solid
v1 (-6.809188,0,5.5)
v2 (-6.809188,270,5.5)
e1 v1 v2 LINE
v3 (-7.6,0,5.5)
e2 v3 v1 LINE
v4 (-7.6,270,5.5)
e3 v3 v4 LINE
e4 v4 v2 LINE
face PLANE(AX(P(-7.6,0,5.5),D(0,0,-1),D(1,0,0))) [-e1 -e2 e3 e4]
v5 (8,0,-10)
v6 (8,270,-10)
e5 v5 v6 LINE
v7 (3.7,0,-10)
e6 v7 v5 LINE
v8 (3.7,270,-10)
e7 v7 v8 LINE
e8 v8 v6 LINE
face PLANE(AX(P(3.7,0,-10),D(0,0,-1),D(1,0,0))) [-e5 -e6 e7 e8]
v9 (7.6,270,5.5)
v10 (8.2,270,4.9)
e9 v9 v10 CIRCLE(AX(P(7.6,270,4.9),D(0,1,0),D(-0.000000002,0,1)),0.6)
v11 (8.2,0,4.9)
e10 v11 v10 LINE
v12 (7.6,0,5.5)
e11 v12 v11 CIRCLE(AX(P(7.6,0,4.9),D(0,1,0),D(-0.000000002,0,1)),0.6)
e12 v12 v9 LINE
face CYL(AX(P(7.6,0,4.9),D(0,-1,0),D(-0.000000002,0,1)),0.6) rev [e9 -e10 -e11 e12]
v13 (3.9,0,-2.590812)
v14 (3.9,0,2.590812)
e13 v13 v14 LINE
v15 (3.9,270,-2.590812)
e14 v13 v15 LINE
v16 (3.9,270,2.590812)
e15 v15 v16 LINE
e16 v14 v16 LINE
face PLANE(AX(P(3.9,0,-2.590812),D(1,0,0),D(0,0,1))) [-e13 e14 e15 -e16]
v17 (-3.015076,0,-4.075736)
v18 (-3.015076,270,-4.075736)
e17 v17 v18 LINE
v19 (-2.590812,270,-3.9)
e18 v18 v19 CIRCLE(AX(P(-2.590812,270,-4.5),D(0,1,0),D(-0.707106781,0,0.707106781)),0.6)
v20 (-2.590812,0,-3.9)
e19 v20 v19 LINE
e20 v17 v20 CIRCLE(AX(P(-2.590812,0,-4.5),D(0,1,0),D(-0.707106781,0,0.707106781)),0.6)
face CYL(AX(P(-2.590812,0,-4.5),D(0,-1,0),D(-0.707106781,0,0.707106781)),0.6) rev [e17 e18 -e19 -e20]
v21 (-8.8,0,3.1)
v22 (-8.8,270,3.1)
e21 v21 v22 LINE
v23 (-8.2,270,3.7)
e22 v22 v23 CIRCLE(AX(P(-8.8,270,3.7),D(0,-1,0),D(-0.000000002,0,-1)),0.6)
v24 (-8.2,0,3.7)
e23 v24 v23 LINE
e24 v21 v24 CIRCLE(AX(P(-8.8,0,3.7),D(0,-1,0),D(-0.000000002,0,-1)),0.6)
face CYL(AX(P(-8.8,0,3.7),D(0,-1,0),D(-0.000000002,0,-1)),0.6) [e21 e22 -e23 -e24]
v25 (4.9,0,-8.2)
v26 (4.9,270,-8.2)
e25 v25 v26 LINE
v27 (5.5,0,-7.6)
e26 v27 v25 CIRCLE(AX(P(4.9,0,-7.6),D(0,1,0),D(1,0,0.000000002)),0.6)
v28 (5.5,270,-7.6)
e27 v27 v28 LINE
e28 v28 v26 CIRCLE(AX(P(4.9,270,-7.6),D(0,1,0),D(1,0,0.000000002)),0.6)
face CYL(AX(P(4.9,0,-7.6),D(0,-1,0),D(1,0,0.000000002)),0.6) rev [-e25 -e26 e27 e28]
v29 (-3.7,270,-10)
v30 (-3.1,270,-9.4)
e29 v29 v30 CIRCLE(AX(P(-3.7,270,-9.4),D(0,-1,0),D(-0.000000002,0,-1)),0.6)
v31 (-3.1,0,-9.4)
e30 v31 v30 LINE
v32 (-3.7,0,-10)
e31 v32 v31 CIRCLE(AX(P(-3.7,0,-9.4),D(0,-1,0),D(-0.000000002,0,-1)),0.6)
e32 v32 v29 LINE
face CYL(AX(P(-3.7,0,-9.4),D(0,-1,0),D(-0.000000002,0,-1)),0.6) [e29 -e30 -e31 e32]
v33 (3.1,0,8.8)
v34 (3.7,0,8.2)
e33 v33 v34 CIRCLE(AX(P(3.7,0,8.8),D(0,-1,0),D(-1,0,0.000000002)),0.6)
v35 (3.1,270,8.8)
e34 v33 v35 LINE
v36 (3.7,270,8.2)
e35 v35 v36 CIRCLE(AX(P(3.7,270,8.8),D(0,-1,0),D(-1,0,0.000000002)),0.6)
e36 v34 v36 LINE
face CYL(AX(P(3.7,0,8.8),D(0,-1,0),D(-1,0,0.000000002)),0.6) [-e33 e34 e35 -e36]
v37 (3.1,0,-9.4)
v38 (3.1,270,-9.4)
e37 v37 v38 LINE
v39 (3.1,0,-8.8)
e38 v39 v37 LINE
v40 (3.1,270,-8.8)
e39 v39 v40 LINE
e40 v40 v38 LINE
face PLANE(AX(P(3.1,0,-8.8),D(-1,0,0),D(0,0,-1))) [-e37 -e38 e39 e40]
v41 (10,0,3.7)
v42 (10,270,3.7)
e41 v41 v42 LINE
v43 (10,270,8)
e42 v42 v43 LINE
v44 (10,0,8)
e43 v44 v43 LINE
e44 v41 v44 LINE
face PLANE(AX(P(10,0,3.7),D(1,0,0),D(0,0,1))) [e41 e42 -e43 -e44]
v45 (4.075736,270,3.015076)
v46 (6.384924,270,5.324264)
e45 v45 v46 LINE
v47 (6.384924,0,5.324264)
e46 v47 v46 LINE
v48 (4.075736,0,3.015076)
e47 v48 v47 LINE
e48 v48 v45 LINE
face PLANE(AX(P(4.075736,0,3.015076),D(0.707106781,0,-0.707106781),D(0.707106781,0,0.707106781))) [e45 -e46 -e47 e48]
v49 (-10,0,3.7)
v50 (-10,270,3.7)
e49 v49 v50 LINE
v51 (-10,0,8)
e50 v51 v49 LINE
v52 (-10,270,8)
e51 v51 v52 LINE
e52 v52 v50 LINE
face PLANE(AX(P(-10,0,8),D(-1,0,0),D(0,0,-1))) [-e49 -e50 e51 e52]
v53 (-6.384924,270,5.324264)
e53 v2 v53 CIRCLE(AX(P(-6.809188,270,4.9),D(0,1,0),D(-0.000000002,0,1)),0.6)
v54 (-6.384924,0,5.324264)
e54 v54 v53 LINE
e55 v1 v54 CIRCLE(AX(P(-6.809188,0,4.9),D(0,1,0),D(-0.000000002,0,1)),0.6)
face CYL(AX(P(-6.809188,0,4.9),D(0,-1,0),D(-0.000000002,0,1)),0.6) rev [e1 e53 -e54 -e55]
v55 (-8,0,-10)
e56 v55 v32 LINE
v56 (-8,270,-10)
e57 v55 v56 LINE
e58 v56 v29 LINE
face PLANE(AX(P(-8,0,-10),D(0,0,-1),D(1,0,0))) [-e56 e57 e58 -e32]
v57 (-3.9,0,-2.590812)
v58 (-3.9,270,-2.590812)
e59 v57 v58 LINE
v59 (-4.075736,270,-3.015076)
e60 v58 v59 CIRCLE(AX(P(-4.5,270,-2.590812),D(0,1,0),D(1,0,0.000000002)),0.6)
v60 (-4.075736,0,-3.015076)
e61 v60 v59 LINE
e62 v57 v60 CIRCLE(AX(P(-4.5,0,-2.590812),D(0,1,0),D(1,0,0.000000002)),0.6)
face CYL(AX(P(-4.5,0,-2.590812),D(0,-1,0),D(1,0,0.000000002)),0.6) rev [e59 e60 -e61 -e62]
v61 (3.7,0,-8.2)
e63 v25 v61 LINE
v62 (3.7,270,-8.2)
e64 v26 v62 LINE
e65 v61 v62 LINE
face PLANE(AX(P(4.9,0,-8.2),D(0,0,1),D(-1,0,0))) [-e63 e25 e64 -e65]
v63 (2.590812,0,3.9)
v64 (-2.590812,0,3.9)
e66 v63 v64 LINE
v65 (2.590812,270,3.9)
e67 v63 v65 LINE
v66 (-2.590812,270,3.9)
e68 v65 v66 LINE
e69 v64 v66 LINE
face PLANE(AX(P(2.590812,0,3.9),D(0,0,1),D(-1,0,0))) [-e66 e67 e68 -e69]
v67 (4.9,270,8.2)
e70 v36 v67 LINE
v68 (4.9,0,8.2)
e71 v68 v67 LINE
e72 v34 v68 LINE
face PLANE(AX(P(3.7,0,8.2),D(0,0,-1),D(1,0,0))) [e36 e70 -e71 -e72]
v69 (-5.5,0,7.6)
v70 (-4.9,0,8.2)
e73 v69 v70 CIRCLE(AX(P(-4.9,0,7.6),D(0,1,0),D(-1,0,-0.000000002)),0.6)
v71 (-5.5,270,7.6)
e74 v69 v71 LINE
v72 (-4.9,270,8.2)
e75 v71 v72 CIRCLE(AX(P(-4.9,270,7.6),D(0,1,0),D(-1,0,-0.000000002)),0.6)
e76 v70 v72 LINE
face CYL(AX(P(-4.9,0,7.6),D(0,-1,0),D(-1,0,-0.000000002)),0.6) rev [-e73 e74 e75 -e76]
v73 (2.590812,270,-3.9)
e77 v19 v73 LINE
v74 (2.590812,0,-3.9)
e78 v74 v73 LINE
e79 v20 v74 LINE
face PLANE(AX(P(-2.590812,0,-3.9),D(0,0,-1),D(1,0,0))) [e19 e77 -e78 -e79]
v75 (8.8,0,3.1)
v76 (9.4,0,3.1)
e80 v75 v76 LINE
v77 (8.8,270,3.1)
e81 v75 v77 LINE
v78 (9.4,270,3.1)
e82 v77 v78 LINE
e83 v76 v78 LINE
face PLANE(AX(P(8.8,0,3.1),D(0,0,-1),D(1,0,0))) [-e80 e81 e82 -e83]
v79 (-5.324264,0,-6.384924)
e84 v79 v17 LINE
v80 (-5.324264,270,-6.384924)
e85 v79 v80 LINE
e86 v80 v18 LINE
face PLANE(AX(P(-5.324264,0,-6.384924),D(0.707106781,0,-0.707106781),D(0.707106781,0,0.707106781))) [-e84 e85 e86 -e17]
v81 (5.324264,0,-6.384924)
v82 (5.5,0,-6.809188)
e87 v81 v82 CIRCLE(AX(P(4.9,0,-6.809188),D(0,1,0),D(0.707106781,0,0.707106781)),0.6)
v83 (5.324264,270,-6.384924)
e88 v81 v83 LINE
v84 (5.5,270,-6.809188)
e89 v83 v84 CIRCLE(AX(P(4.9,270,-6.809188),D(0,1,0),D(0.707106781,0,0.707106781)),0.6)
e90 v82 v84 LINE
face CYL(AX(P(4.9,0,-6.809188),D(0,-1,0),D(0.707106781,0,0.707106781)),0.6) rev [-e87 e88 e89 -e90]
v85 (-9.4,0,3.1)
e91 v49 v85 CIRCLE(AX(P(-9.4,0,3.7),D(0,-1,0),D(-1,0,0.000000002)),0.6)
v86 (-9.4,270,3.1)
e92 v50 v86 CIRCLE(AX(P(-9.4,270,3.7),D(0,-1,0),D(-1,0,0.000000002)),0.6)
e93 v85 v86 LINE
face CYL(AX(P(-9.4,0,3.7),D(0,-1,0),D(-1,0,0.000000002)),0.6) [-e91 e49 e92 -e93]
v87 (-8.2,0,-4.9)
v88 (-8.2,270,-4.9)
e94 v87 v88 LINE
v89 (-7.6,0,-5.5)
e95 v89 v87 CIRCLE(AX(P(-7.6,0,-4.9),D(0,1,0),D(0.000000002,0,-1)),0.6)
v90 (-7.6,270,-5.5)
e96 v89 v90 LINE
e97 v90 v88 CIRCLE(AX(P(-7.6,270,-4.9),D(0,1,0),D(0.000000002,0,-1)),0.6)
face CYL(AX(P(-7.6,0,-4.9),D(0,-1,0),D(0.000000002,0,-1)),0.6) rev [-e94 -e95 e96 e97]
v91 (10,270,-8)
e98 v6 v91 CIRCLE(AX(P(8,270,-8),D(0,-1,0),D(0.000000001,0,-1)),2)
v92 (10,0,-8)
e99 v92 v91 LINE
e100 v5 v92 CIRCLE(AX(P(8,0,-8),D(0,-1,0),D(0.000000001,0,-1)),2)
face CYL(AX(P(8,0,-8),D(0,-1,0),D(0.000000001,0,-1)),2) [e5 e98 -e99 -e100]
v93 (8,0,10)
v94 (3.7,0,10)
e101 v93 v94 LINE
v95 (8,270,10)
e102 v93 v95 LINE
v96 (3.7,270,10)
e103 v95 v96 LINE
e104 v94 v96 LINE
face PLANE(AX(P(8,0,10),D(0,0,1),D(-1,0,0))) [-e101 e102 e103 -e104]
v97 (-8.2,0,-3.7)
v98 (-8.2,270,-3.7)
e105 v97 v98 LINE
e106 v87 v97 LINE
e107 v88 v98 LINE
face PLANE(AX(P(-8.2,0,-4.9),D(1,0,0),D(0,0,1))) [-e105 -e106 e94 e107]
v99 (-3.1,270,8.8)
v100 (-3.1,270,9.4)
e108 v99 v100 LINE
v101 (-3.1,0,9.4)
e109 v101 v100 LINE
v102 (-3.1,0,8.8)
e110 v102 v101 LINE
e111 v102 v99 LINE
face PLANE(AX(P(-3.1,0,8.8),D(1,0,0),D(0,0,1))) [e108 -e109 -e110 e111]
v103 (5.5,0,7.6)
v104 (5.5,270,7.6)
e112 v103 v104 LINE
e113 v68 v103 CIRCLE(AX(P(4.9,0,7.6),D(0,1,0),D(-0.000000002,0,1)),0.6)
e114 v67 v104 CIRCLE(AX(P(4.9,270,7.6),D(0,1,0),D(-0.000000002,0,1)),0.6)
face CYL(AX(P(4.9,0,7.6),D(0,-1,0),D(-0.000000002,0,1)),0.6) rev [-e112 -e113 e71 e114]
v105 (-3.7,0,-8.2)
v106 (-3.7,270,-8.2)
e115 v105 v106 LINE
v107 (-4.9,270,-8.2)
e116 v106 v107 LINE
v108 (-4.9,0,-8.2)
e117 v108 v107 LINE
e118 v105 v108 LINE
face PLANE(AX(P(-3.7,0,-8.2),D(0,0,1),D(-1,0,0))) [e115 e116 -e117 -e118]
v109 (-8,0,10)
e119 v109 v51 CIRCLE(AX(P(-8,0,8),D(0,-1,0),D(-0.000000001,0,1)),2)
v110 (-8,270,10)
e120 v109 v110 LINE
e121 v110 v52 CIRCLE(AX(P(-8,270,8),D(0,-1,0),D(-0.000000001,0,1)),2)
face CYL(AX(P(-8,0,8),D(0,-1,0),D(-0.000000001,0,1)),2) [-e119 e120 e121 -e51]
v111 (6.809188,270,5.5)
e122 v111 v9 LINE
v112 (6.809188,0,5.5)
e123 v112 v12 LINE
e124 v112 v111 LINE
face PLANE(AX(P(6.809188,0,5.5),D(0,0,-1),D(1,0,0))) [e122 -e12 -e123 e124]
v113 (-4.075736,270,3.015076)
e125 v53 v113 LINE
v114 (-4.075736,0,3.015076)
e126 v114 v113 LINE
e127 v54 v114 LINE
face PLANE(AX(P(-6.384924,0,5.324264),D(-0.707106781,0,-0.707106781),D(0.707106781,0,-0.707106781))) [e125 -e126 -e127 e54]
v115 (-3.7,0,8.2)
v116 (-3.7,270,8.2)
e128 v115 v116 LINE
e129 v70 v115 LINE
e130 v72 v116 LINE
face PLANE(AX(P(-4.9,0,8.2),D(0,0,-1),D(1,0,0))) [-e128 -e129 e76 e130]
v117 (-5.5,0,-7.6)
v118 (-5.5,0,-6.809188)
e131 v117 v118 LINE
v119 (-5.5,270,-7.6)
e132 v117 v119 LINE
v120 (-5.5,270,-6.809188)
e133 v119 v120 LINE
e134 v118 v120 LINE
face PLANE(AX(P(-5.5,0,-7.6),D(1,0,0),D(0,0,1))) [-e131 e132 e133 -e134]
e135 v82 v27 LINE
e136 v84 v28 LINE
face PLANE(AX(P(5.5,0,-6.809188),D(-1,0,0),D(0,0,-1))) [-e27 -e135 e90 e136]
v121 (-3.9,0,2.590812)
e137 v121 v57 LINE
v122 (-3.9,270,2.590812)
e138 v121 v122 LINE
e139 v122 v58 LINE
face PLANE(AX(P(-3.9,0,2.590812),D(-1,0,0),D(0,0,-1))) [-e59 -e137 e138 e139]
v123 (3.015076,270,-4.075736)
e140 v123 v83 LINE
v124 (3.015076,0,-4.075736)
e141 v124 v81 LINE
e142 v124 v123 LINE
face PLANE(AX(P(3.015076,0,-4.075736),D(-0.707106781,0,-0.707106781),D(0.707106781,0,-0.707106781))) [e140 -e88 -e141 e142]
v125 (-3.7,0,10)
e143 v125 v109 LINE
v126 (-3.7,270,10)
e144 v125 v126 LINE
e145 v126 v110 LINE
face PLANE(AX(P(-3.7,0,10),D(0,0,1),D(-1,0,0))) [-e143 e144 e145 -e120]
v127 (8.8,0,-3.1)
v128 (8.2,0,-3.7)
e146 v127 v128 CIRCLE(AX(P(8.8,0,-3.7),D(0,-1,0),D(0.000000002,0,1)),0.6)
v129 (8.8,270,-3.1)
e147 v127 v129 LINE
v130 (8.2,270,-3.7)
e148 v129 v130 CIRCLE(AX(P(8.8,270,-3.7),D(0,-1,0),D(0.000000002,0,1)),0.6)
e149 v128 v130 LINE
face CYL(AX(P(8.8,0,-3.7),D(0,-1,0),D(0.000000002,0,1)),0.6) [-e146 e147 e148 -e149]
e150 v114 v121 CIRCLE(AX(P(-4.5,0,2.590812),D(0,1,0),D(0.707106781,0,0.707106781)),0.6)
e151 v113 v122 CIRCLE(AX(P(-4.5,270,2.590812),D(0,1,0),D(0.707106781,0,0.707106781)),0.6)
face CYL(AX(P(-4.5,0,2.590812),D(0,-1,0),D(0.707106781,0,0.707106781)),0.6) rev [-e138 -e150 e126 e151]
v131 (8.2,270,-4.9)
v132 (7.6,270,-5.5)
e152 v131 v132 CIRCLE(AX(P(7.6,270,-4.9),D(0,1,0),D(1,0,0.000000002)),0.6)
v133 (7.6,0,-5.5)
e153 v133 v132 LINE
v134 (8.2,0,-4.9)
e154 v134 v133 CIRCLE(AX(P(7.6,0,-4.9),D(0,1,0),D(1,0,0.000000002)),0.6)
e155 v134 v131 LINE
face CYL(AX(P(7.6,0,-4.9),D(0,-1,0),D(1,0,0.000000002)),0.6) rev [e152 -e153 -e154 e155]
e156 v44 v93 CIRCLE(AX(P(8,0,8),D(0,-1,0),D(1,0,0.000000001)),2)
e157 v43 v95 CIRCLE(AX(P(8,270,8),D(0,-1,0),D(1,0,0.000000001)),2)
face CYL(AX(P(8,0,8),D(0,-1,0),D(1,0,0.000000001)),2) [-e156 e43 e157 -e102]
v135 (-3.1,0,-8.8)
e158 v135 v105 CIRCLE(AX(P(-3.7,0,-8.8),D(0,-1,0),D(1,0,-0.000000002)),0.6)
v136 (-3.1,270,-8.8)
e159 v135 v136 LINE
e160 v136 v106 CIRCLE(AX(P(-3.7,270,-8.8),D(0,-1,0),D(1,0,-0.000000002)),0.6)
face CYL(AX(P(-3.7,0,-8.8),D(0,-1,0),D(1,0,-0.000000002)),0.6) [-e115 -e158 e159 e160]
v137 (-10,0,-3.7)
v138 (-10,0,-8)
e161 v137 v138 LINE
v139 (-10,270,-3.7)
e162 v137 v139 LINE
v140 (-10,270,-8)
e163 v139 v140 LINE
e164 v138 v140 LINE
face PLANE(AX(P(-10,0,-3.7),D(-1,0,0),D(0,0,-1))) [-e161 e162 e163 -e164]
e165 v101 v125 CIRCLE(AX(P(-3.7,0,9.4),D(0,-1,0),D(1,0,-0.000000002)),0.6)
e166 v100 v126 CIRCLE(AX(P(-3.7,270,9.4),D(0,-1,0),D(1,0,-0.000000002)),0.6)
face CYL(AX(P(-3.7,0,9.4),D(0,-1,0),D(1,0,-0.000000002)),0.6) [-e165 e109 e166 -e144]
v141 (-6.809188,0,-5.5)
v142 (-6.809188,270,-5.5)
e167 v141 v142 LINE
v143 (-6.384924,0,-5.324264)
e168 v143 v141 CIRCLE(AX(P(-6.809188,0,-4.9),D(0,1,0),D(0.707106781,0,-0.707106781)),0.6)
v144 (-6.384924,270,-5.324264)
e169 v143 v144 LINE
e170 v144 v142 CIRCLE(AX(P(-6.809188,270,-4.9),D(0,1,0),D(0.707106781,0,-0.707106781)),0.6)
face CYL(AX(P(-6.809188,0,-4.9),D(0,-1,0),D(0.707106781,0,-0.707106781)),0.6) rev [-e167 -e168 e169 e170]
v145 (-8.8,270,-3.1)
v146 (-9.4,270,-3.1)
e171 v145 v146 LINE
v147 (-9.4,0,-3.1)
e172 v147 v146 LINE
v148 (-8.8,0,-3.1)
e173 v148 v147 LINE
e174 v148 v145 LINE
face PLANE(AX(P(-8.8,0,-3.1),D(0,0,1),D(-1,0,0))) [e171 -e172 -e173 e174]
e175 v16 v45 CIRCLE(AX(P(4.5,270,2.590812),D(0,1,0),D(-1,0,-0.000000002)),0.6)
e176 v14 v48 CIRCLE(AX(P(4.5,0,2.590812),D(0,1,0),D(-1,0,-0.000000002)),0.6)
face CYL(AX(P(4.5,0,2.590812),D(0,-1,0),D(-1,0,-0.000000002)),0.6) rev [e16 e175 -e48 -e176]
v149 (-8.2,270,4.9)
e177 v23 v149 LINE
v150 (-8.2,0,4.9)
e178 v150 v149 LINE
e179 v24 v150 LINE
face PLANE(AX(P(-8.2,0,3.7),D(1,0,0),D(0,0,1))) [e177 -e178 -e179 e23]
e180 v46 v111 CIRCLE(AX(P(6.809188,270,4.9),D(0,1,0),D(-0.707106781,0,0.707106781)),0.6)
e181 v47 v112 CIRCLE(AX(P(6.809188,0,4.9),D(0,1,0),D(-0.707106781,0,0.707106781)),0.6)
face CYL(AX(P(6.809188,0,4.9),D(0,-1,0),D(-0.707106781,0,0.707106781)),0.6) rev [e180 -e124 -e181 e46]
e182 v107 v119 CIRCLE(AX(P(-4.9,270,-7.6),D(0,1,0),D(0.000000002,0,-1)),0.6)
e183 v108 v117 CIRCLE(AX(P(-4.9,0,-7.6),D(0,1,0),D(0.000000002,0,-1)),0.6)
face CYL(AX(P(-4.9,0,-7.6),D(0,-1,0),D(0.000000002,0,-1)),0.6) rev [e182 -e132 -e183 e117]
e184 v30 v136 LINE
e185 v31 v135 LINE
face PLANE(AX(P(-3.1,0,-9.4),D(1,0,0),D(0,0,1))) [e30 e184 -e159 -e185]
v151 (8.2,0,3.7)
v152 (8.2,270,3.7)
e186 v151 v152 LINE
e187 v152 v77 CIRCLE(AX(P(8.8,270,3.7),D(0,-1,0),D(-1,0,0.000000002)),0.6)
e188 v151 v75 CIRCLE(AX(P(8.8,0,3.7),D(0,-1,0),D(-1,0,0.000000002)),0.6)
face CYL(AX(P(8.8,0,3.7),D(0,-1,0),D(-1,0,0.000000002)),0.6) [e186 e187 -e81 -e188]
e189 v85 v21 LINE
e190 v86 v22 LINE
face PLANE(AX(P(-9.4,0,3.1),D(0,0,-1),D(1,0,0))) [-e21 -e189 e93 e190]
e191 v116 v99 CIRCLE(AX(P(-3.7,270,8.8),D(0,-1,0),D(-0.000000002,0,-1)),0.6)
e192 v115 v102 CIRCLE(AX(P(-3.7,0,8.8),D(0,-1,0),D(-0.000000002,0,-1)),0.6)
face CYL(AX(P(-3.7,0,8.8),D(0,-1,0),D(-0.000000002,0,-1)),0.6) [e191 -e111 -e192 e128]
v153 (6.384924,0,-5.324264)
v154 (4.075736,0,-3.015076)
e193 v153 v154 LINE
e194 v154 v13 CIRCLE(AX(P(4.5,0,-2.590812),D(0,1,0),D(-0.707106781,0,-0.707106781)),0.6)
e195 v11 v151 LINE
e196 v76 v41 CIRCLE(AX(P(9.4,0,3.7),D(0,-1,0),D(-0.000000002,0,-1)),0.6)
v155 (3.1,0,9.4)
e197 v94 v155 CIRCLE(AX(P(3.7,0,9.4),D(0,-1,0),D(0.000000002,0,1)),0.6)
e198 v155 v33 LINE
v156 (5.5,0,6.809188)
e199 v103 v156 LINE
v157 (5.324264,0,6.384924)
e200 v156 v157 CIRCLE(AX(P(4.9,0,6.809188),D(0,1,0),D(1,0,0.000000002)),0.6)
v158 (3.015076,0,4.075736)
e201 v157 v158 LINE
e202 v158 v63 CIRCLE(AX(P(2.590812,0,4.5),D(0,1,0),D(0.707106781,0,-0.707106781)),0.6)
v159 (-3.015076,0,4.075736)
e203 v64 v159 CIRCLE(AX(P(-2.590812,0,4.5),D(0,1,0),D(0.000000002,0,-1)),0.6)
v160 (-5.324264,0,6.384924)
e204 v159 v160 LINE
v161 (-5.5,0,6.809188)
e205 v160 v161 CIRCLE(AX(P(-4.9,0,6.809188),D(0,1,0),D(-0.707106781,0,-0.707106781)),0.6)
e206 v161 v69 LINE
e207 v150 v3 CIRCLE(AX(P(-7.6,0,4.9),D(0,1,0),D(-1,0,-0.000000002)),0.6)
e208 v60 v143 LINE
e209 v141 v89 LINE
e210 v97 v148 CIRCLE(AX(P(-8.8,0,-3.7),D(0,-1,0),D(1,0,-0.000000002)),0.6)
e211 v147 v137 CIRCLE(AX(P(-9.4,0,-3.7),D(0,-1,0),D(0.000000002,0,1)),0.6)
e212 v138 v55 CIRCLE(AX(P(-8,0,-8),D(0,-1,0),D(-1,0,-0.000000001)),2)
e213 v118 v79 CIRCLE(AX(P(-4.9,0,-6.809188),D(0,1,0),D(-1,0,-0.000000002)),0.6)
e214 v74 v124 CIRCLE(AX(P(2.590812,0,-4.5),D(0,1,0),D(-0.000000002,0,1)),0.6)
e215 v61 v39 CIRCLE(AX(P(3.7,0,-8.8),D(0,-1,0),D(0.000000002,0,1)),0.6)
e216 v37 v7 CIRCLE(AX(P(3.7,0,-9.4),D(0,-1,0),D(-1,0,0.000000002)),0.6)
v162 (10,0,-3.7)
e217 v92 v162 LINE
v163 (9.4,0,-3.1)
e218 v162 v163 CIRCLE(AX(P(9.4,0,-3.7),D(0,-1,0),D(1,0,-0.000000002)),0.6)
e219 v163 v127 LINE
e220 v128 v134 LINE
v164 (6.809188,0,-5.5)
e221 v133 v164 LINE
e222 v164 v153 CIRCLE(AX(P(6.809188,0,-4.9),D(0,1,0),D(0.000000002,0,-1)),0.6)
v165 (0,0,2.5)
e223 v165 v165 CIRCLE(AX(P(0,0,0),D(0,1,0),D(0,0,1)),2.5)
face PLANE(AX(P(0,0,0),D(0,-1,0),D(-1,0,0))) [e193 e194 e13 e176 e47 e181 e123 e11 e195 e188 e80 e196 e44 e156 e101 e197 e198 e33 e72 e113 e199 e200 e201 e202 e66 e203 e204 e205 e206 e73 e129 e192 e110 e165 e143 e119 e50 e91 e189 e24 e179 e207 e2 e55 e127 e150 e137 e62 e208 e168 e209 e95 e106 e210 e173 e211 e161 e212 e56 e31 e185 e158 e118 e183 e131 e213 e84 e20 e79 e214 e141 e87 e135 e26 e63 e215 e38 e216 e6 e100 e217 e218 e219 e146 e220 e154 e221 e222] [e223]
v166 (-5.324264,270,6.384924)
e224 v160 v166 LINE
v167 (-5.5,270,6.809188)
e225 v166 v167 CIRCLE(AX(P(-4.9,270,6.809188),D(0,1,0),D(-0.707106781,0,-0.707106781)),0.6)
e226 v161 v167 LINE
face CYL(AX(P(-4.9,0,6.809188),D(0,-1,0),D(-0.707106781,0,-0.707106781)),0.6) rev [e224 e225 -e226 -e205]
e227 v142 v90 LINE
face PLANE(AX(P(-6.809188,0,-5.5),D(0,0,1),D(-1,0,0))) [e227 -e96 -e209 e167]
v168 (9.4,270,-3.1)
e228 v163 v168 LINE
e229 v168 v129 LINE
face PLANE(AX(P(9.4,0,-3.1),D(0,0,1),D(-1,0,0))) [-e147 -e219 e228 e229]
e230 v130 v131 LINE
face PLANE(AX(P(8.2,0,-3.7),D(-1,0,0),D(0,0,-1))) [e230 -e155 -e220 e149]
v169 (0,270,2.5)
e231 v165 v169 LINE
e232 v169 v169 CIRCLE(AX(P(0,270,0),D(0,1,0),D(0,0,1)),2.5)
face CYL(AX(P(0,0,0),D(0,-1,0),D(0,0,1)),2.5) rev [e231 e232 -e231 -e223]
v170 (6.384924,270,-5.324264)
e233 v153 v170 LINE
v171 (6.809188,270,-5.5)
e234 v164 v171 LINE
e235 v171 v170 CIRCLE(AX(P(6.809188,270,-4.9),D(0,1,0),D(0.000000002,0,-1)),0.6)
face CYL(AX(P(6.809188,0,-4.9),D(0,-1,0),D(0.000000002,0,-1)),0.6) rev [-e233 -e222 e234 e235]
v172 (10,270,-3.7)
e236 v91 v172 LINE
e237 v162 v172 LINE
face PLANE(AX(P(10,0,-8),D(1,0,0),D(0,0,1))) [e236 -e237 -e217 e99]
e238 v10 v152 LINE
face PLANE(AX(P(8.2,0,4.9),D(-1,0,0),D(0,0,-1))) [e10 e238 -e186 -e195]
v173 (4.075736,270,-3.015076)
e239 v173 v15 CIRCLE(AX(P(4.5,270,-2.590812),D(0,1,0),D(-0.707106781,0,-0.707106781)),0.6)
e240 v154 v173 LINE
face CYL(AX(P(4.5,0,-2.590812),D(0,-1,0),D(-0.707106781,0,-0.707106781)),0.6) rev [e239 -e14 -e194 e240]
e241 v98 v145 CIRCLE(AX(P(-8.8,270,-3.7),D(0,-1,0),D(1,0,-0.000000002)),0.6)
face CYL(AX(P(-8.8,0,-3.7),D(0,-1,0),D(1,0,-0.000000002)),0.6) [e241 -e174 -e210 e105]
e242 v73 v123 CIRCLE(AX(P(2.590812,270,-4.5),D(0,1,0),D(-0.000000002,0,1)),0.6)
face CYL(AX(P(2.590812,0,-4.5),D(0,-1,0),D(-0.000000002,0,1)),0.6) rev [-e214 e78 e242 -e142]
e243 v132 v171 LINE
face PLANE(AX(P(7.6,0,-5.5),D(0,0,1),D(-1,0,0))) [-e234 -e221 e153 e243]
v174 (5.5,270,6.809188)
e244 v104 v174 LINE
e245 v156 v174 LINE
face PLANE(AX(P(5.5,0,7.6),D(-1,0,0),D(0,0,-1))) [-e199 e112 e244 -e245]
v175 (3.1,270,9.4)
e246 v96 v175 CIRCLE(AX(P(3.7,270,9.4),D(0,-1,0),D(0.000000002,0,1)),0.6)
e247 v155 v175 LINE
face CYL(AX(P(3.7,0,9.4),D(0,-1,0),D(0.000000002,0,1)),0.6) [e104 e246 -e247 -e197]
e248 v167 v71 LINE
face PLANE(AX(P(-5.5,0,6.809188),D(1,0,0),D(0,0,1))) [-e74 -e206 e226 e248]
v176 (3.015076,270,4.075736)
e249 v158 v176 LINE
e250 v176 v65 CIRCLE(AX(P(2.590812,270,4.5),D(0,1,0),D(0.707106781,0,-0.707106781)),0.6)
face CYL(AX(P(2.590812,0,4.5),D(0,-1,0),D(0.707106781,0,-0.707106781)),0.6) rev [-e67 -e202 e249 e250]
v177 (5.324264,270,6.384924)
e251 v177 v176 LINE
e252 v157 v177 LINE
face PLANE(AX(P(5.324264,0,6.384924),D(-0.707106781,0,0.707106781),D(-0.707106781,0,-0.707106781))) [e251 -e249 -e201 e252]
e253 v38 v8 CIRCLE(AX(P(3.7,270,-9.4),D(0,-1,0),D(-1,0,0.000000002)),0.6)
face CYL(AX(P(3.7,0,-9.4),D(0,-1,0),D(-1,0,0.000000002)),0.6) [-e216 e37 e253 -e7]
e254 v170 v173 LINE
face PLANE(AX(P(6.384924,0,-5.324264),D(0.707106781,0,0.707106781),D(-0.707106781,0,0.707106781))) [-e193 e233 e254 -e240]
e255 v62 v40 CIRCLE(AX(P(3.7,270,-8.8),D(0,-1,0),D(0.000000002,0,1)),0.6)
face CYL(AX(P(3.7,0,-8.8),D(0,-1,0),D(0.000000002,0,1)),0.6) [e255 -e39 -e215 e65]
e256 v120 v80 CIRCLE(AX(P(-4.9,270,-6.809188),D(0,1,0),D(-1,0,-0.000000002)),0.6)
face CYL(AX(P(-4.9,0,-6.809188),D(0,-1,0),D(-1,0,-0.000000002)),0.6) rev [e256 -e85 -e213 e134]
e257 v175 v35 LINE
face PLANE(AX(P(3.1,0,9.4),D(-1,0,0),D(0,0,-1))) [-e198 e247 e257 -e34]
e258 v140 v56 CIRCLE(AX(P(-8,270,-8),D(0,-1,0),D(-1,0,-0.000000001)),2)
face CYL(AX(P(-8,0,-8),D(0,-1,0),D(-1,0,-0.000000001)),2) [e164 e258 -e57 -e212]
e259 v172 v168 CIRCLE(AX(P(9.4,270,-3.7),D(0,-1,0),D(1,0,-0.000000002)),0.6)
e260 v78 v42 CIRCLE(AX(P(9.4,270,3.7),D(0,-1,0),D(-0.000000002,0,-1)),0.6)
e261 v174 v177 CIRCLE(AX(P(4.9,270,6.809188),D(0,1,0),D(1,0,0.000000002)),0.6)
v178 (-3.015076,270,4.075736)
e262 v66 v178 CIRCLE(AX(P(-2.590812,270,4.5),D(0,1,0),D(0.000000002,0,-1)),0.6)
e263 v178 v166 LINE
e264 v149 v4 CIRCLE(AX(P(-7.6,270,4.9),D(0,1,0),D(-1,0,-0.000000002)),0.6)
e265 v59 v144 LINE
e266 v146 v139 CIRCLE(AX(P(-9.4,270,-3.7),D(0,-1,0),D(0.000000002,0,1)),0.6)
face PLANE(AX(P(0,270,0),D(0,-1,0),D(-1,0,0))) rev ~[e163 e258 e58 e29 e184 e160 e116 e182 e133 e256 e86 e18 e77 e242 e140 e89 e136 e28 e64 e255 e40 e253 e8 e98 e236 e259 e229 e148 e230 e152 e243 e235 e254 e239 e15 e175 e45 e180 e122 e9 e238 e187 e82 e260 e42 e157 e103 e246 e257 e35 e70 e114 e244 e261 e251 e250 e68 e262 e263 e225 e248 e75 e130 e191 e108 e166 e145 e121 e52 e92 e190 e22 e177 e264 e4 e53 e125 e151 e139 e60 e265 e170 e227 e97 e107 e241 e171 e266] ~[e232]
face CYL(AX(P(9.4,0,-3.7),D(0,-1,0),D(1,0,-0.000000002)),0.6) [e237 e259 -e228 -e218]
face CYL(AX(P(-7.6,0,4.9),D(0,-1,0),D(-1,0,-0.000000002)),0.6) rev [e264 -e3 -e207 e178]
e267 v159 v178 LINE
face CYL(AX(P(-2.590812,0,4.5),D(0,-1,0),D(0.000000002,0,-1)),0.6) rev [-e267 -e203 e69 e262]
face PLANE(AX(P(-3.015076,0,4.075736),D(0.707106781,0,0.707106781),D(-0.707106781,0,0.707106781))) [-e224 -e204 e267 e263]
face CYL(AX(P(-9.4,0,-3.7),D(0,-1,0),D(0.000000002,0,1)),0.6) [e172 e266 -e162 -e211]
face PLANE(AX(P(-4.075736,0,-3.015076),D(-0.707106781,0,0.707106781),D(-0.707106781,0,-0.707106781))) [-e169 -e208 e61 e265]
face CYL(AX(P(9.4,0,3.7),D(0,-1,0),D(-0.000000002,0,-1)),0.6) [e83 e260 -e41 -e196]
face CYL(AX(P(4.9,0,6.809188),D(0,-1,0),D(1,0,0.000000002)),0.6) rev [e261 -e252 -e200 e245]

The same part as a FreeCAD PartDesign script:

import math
import FreeCAD as App
import Part
import Sketcher

V = App.Vector
Q = App.Units.Quantity

doc = App.newDocument("Part")
body = doc.addObject("PartDesign::Body", "Body")

# Sketch on XZ plane
sketch1 = body.newObject("Sketcher::SketchObject", "Sketch")
sketch1.AttachmentSupport = (doc.getObject("XZ_Plane"), [""])
sketch1.MapMode = "FlatFace"
sketch1.addGeometry(Part.LineSegment(V(3.1, -9.4, 0), V(3.1, -8.8, 0)), False)
sketch1.addGeometry(Part.ArcOfCircle(Part.Circle(V(3.7, -8.8, 0), V(0, 0, 1), 0.6), math.radians(90), math.radians(180)), False)
sketch1.addGeometry(Part.LineSegment(V(3.7, -8.2, 0), V(4.9, -8.2, 0)), False)
sketch1.addGeometry(Part.ArcOfCircle(Part.Circle(V(4.9, -7.6, 0), V(0, 0, 1), 0.6), math.radians(-90), math.radians(0)), False)
sketch1.addGeometry(Part.LineSegment(V(5.5, -7.6, 0), V(5.5, -6.81, 0)), False)
sketch1.addGeometry(Part.ArcOfCircle(Part.Circle(V(4.9, -6.81, 0), V(0, 0, 1), 0.6), math.radians(0), math.radians(45)), False)
sketch1.addGeometry(Part.LineSegment(V(5.32, -6.38, 0), V(3.02, -4.08, 0)), False)
sketch1.addGeometry(Part.ArcOfCircle(Part.Circle(V(2.59, -4.5, 0), V(0, 0, 1), 0.6), math.radians(45), math.radians(90)), False)
sketch1.addGeometry(Part.LineSegment(V(2.59, -3.9, 0), V(-2.59, -3.9, 0)), False)
sketch1.addGeometry(Part.ArcOfCircle(Part.Circle(V(-2.59, -4.5, 0), V(0, 0, 1), 0.6), math.radians(90), math.radians(135)), False)
sketch1.addGeometry(Part.LineSegment(V(-3.02, -4.08, 0), V(-5.32, -6.38, 0)), False)
sketch1.addGeometry(Part.ArcOfCircle(Part.Circle(V(-4.9, -6.81, 0), V(0, 0, 1), 0.6), math.radians(135), math.radians(180)), False)
sketch1.addGeometry(Part.LineSegment(V(-5.5, -6.81, 0), V(-5.5, -7.6, 0)), False)
sketch1.addGeometry(Part.ArcOfCircle(Part.Circle(V(-4.9, -7.6, 0), V(0, 0, 1), 0.6), math.radians(180), math.radians(270)), False)
sketch1.addGeometry(Part.LineSegment(V(-4.9, -8.2, 0), V(-3.7, -8.2, 0)), False)
sketch1.addGeometry(Part.ArcOfCircle(Part.Circle(V(-3.7, -8.8, 0), V(0, 0, 1), 0.6), math.radians(0), math.radians(90)), False)
sketch1.addGeometry(Part.LineSegment(V(-3.1, -8.8, 0), V(-3.1, -9.4, 0)), False)
sketch1.addGeometry(Part.ArcOfCircle(Part.Circle(V(-3.7, -9.4, 0), V(0, 0, 1), 0.6), math.radians(-90), math.radians(0)), False)
sketch1.addGeometry(Part.LineSegment(V(-3.7, -10, 0), V(-8, -10, 0)), False)
sketch1.addGeometry(Part.ArcOfCircle(Part.Circle(V(-8, -8, 0), V(0, 0, 1), 2), math.radians(-180), math.radians(-90)), False)
sketch1.addGeometry(Part.LineSegment(V(-10, -8, 0), V(-10, -3.7, 0)), False)
sketch1.addGeometry(Part.ArcOfCircle(Part.Circle(V(-9.4, -3.7, 0), V(0, 0, 1), 0.6), math.radians(90), math.radians(180)), False)
sketch1.addGeometry(Part.LineSegment(V(-9.4, -3.1, 0), V(-8.8, -3.1, 0)), False)
sketch1.addGeometry(Part.ArcOfCircle(Part.Circle(V(-8.8, -3.7, 0), V(0, 0, 1), 0.6), math.radians(0), math.radians(90)), False)
sketch1.addGeometry(Part.LineSegment(V(-8.2, -3.7, 0), V(-8.2, -4.9, 0)), False)
sketch1.addGeometry(Part.ArcOfCircle(Part.Circle(V(-7.6, -4.9, 0), V(0, 0, 1), 0.6), math.radians(180), math.radians(270)), False)
sketch1.addGeometry(Part.LineSegment(V(-7.6, -5.5, 0), V(-6.81, -5.5, 0)), False)
sketch1.addGeometry(Part.ArcOfCircle(Part.Circle(V(-6.81, -4.9, 0), V(0, 0, 1), 0.6), math.radians(-90), math.radians(-45)), False)
sketch1.addGeometry(Part.LineSegment(V(-6.38, -5.32, 0), V(-4.08, -3.02, 0)), False)
sketch1.addGeometry(Part.ArcOfCircle(Part.Circle(V(-4.5, -2.59, 0), V(0, 0, 1), 0.6), math.radians(-45), math.radians(0)), False)
sketch1.addGeometry(Part.LineSegment(V(-3.9, -2.59, 0), V(-3.9, 2.59, 0)), False)
sketch1.addGeometry(Part.ArcOfCircle(Part.Circle(V(-4.5, 2.59, 0), V(0, 0, 1), 0.6), math.radians(0), math.radians(45)), False)
sketch1.addGeometry(Part.LineSegment(V(-4.08, 3.02, 0), V(-6.38, 5.32, 0)), False)
sketch1.addGeometry(Part.ArcOfCircle(Part.Circle(V(-6.81, 4.9, 0), V(0, 0, 1), 0.6), math.radians(45), math.radians(90)), False)
sketch1.addGeometry(Part.LineSegment(V(-6.81, 5.5, 0), V(-7.6, 5.5, 0)), False)
sketch1.addGeometry(Part.ArcOfCircle(Part.Circle(V(-7.6, 4.9, 0), V(0, 0, 1), 0.6), math.radians(90), math.radians(180)), False)
sketch1.addGeometry(Part.LineSegment(V(-8.2, 4.9, 0), V(-8.2, 3.7, 0)), False)
sketch1.addGeometry(Part.ArcOfCircle(Part.Circle(V(-8.8, 3.7, 0), V(0, 0, 1), 0.6), math.radians(-90), math.radians(0)), False)
sketch1.addGeometry(Part.LineSegment(V(-8.8, 3.1, 0), V(-9.4, 3.1, 0)), False)
sketch1.addGeometry(Part.ArcOfCircle(Part.Circle(V(-9.4, 3.7, 0), V(0, 0, 1), 0.6), math.radians(180), math.radians(270)), False)
sketch1.addGeometry(Part.LineSegment(V(-10, 3.7, 0), V(-10, 8, 0)), False)
sketch1.addGeometry(Part.ArcOfCircle(Part.Circle(V(-8, 8, 0), V(0, 0, 1), 2), math.radians(90), math.radians(180)), False)
sketch1.addGeometry(Part.LineSegment(V(-8, 10, 0), V(-3.7, 10, 0)), False)
sketch1.addGeometry(Part.ArcOfCircle(Part.Circle(V(-3.7, 9.4, 0), V(0, 0, 1), 0.6), math.radians(0), math.radians(90)), False)
sketch1.addGeometry(Part.LineSegment(V(-3.1, 9.4, 0), V(-3.1, 8.8, 0)), False)
sketch1.addGeometry(Part.ArcOfCircle(Part.Circle(V(-3.7, 8.8, 0), V(0, 0, 1), 0.6), math.radians(-90), math.radians(0)), False)
sketch1.addGeometry(Part.LineSegment(V(-3.7, 8.2, 0), V(-4.9, 8.2, 0)), False)
sketch1.addGeometry(Part.ArcOfCircle(Part.Circle(V(-4.9, 7.6, 0), V(0, 0, 1), 0.6), math.radians(90), math.radians(180)), False)
sketch1.addGeometry(Part.LineSegment(V(-5.5, 7.6, 0), V(-5.5, 6.81, 0)), False)
sketch1.addGeometry(Part.ArcOfCircle(Part.Circle(V(-4.9, 6.81, 0), V(0, 0, 1), 0.6), math.radians(180), math.radians(225)), False)
sketch1.addGeometry(Part.LineSegment(V(-5.32, 6.38, 0), V(-3.02, 4.08, 0)), False)
sketch1.addGeometry(Part.ArcOfCircle(Part.Circle(V(-2.59, 4.5, 0), V(0, 0, 1), 0.6), math.radians(-135), math.radians(-90)), False)
sketch1.addGeometry(Part.LineSegment(V(-2.59, 3.9, 0), V(2.59, 3.9, 0)), False)
sketch1.addGeometry(Part.ArcOfCircle(Part.Circle(V(2.59, 4.5, 0), V(0, 0, 1), 0.6), math.radians(-90), math.radians(-45)), False)
sketch1.addGeometry(Part.LineSegment(V(3.02, 4.08, 0), V(5.32, 6.38, 0)), False)
sketch1.addGeometry(Part.ArcOfCircle(Part.Circle(V(4.9, 6.81, 0), V(0, 0, 1), 0.6), math.radians(-45), math.radians(0)), False)
sketch1.addGeometry(Part.LineSegment(V(5.5, 6.81, 0), V(5.5, 7.6, 0)), False)
sketch1.addGeometry(Part.ArcOfCircle(Part.Circle(V(4.9, 7.6, 0), V(0, 0, 1), 0.6), math.radians(0), math.radians(90)), False)
sketch1.addGeometry(Part.LineSegment(V(4.9, 8.2, 0), V(3.7, 8.2, 0)), False)
sketch1.addGeometry(Part.ArcOfCircle(Part.Circle(V(3.7, 8.8, 0), V(0, 0, 1), 0.6), math.radians(180), math.radians(270)), False)
sketch1.addGeometry(Part.LineSegment(V(3.1, 8.8, 0), V(3.1, 9.4, 0)), False)
sketch1.addGeometry(Part.ArcOfCircle(Part.Circle(V(3.7, 9.4, 0), V(0, 0, 1), 0.6), math.radians(90), math.radians(180)), False)
sketch1.addGeometry(Part.LineSegment(V(3.7, 10, 0), V(8, 10, 0)), False)
sketch1.addGeometry(Part.ArcOfCircle(Part.Circle(V(8, 8, 0), V(0, 0, 1), 2), math.radians(0), math.radians(90)), False)
sketch1.addGeometry(Part.LineSegment(V(10, 8, 0), V(10, 3.7, 0)), False)
sketch1.addGeometry(Part.ArcOfCircle(Part.Circle(V(9.4, 3.7, 0), V(0, 0, 1), 0.6), math.radians(-90), math.radians(0)), False)
sketch1.addGeometry(Part.LineSegment(V(9.4, 3.1, 0), V(8.8, 3.1, 0)), False)
sketch1.addGeometry(Part.ArcOfCircle(Part.Circle(V(8.8, 3.7, 0), V(0, 0, 1), 0.6), math.radians(180), math.radians(270)), False)
sketch1.addGeometry(Part.LineSegment(V(8.2, 3.7, 0), V(8.2, 4.9, 0)), False)
sketch1.addGeometry(Part.ArcOfCircle(Part.Circle(V(7.6, 4.9, 0), V(0, 0, 1), 0.6), math.radians(0), math.radians(90)), False)
sketch1.addGeometry(Part.LineSegment(V(7.6, 5.5, 0), V(6.81, 5.5, 0)), False)
sketch1.addGeometry(Part.ArcOfCircle(Part.Circle(V(6.81, 4.9, 0), V(0, 0, 1), 0.6), math.radians(90), math.radians(135)), False)
sketch1.addGeometry(Part.LineSegment(V(6.38, 5.32, 0), V(4.08, 3.02, 0)), False)
sketch1.addGeometry(Part.ArcOfCircle(Part.Circle(V(4.5, 2.59, 0), V(0, 0, 1), 0.6), math.radians(135), math.radians(180)), False)
sketch1.addGeometry(Part.LineSegment(V(3.9, 2.59, 0), V(3.9, -2.59, 0)), False)
sketch1.addGeometry(Part.ArcOfCircle(Part.Circle(V(4.5, -2.59, 0), V(0, 0, 1), 0.6), math.radians(180), math.radians(225)), False)
sketch1.addGeometry(Part.LineSegment(V(4.08, -3.02, 0), V(6.38, -5.32, 0)), False)
sketch1.addGeometry(Part.ArcOfCircle(Part.Circle(V(6.81, -4.9, 0), V(0, 0, 1), 0.6), math.radians(-135), math.radians(-90)), False)
sketch1.addGeometry(Part.LineSegment(V(6.81, -5.5, 0), V(7.6, -5.5, 0)), False)
sketch1.addGeometry(Part.ArcOfCircle(Part.Circle(V(7.6, -4.9, 0), V(0, 0, 1), 0.6), math.radians(-90), math.radians(0)), False)
sketch1.addGeometry(Part.LineSegment(V(8.2, -4.9, 0), V(8.2, -3.7, 0)), False)
sketch1.addGeometry(Part.ArcOfCircle(Part.Circle(V(8.8, -3.7, 0), V(0, 0, 1), 0.6), math.radians(90), math.radians(180)), False)
sketch1.addGeometry(Part.LineSegment(V(8.8, -3.1, 0), V(9.4, -3.1, 0)), False)
sketch1.addGeometry(Part.ArcOfCircle(Part.Circle(V(9.4, -3.7, 0), V(0, 0, 1), 0.6), math.radians(0), math.radians(90)), False)
sketch1.addGeometry(Part.LineSegment(V(10, -3.7, 0), V(10, -8, 0)), False)
sketch1.addGeometry(Part.ArcOfCircle(Part.Circle(V(8, -8, 0), V(0, 0, 1), 2), math.radians(-90), math.radians(0)), False)
sketch1.addGeometry(Part.LineSegment(V(8, -10, 0), V(3.7, -10, 0)), False)
sketch1.addGeometry(Part.ArcOfCircle(Part.Circle(V(3.7, -9.4, 0), V(0, 0, 1), 0.6), math.radians(180), math.radians(270)), False)
sketch1.addGeometry(Part.Circle(V(0, 0, 0), V(0, 0, 1), 2.5), False)
sketch1.addConstraint(Sketcher.Constraint("Tangent", 0, 2, 1, 2))
sketch1.addConstraint(Sketcher.Constraint("Tangent", 1, 1, 2, 1))
sketch1.addConstraint(Sketcher.Constraint("Tangent", 2, 2, 3, 1))
sketch1.addConstraint(Sketcher.Constraint("Tangent", 3, 2, 4, 1))
sketch1.addConstraint(Sketcher.Constraint("Tangent", 4, 2, 5, 1))
sketch1.addConstraint(Sketcher.Constraint("Tangent", 5, 2, 6, 1))
sketch1.addConstraint(Sketcher.Constraint("Tangent", 6, 2, 7, 1))
sketch1.addConstraint(Sketcher.Constraint("Tangent", 7, 2, 8, 1))
sketch1.addConstraint(Sketcher.Constraint("Tangent", 8, 2, 9, 1))
sketch1.addConstraint(Sketcher.Constraint("Tangent", 9, 2, 10, 1))
sketch1.addConstraint(Sketcher.Constraint("Tangent", 10, 2, 11, 1))
sketch1.addConstraint(Sketcher.Constraint("Tangent", 11, 2, 12, 1))
sketch1.addConstraint(Sketcher.Constraint("Tangent", 12, 2, 13, 1))
sketch1.addConstraint(Sketcher.Constraint("Tangent", 13, 2, 14, 1))
sketch1.addConstraint(Sketcher.Constraint("Tangent", 14, 2, 15, 2))
sketch1.addConstraint(Sketcher.Constraint("Tangent", 15, 1, 16, 1))
sketch1.addConstraint(Sketcher.Constraint("Tangent", 16, 2, 17, 2))
sketch1.addConstraint(Sketcher.Constraint("Tangent", 17, 1, 18, 1))
sketch1.addConstraint(Sketcher.Constraint("Tangent", 18, 2, 19, 2))
sketch1.addConstraint(Sketcher.Constraint("Tangent", 19, 1, 20, 1))
sketch1.addConstraint(Sketcher.Constraint("Tangent", 20, 2, 21, 2))
sketch1.addConstraint(Sketcher.Constraint("Tangent", 21, 1, 22, 1))
sketch1.addConstraint(Sketcher.Constraint("Tangent", 22, 2, 23, 2))
sketch1.addConstraint(Sketcher.Constraint("Tangent", 23, 1, 24, 1))
sketch1.addConstraint(Sketcher.Constraint("Tangent", 24, 2, 25, 1))
sketch1.addConstraint(Sketcher.Constraint("Tangent", 25, 2, 26, 1))
sketch1.addConstraint(Sketcher.Constraint("Tangent", 26, 2, 27, 1))
sketch1.addConstraint(Sketcher.Constraint("Tangent", 27, 2, 28, 1))
sketch1.addConstraint(Sketcher.Constraint("Tangent", 28, 2, 29, 1))
sketch1.addConstraint(Sketcher.Constraint("Tangent", 29, 2, 30, 1))
sketch1.addConstraint(Sketcher.Constraint("Tangent", 30, 2, 31, 1))
sketch1.addConstraint(Sketcher.Constraint("Tangent", 31, 2, 32, 1))
sketch1.addConstraint(Sketcher.Constraint("Tangent", 32, 2, 33, 1))
sketch1.addConstraint(Sketcher.Constraint("Tangent", 33, 2, 34, 1))
sketch1.addConstraint(Sketcher.Constraint("Tangent", 34, 2, 35, 1))
sketch1.addConstraint(Sketcher.Constraint("Tangent", 35, 2, 36, 1))
sketch1.addConstraint(Sketcher.Constraint("Tangent", 36, 2, 37, 2))
sketch1.addConstraint(Sketcher.Constraint("Tangent", 37, 1, 38, 1))
sketch1.addConstraint(Sketcher.Constraint("Tangent", 38, 2, 39, 2))
sketch1.addConstraint(Sketcher.Constraint("Tangent", 39, 1, 40, 1))
sketch1.addConstraint(Sketcher.Constraint("Tangent", 40, 2, 41, 2))
sketch1.addConstraint(Sketcher.Constraint("Tangent", 41, 1, 42, 1))
sketch1.addConstraint(Sketcher.Constraint("Tangent", 42, 2, 43, 2))
sketch1.addConstraint(Sketcher.Constraint("Tangent", 43, 1, 44, 1))
sketch1.addConstraint(Sketcher.Constraint("Tangent", 44, 2, 45, 2))
sketch1.addConstraint(Sketcher.Constraint("Tangent", 45, 1, 46, 1))
sketch1.addConstraint(Sketcher.Constraint("Tangent", 46, 2, 47, 1))
sketch1.addConstraint(Sketcher.Constraint("Tangent", 47, 2, 48, 1))
sketch1.addConstraint(Sketcher.Constraint("Tangent", 48, 2, 49, 1))
sketch1.addConstraint(Sketcher.Constraint("Tangent", 49, 2, 50, 1))
sketch1.addConstraint(Sketcher.Constraint("Tangent", 50, 2, 51, 1))
sketch1.addConstraint(Sketcher.Constraint("Tangent", 51, 2, 52, 1))
sketch1.addConstraint(Sketcher.Constraint("Tangent", 52, 2, 53, 1))
sketch1.addConstraint(Sketcher.Constraint("Tangent", 53, 2, 54, 1))
sketch1.addConstraint(Sketcher.Constraint("Tangent", 54, 2, 55, 1))
sketch1.addConstraint(Sketcher.Constraint("Tangent", 55, 2, 56, 1))
sketch1.addConstraint(Sketcher.Constraint("Tangent", 56, 2, 57, 1))
sketch1.addConstraint(Sketcher.Constraint("Tangent", 57, 2, 58, 1))
sketch1.addConstraint(Sketcher.Constraint("Tangent", 58, 2, 59, 2))
sketch1.addConstraint(Sketcher.Constraint("Tangent", 59, 1, 60, 1))
sketch1.addConstraint(Sketcher.Constraint("Tangent", 60, 2, 61, 2))
sketch1.addConstraint(Sketcher.Constraint("Tangent", 61, 1, 62, 1))
sketch1.addConstraint(Sketcher.Constraint("Tangent", 62, 2, 63, 2))
sketch1.addConstraint(Sketcher.Constraint("Tangent", 63, 1, 64, 1))
sketch1.addConstraint(Sketcher.Constraint("Tangent", 64, 2, 65, 2))
sketch1.addConstraint(Sketcher.Constraint("Tangent", 65, 1, 66, 1))
sketch1.addConstraint(Sketcher.Constraint("Tangent", 66, 2, 67, 2))
sketch1.addConstraint(Sketcher.Constraint("Tangent", 67, 1, 68, 1))
sketch1.addConstraint(Sketcher.Constraint("Tangent", 68, 2, 69, 1))
sketch1.addConstraint(Sketcher.Constraint("Tangent", 69, 2, 70, 1))
sketch1.addConstraint(Sketcher.Constraint("Tangent", 70, 2, 71, 1))
sketch1.addConstraint(Sketcher.Constraint("Tangent", 71, 2, 72, 1))
sketch1.addConstraint(Sketcher.Constraint("Tangent", 72, 2, 73, 1))
sketch1.addConstraint(Sketcher.Constraint("Tangent", 73, 2, 74, 1))
sketch1.addConstraint(Sketcher.Constraint("Tangent", 74, 2, 75, 1))
sketch1.addConstraint(Sketcher.Constraint("Tangent", 75, 2, 76, 1))
sketch1.addConstraint(Sketcher.Constraint("Tangent", 76, 2, 77, 1))
sketch1.addConstraint(Sketcher.Constraint("Tangent", 77, 2, 78, 1))
sketch1.addConstraint(Sketcher.Constraint("Tangent", 78, 2, 79, 1))
sketch1.addConstraint(Sketcher.Constraint("Tangent", 79, 2, 80, 1))
sketch1.addConstraint(Sketcher.Constraint("Tangent", 80, 2, 81, 2))
sketch1.addConstraint(Sketcher.Constraint("Tangent", 81, 1, 82, 1))
sketch1.addConstraint(Sketcher.Constraint("Tangent", 82, 2, 83, 2))
sketch1.addConstraint(Sketcher.Constraint("Tangent", 83, 1, 84, 1))
sketch1.addConstraint(Sketcher.Constraint("Tangent", 84, 2, 85, 2))
sketch1.addConstraint(Sketcher.Constraint("Tangent", 85, 1, 86, 1))
sketch1.addConstraint(Sketcher.Constraint("Tangent", 86, 2, 87, 2))
sketch1.addConstraint(Sketcher.Constraint("Tangent", 87, 1, 0, 1))
sketch1.addConstraint(Sketcher.Constraint("Vertical", 0))
sketch1.addConstraint(Sketcher.Constraint("Horizontal", 2))
sketch1.addConstraint(Sketcher.Constraint("Vertical", 4))
sketch1.addConstraint(Sketcher.Constraint("Horizontal", 8))
sketch1.addConstraint(Sketcher.Constraint("Vertical", 12))
sketch1.addConstraint(Sketcher.Constraint("Horizontal", 14))
sketch1.addConstraint(Sketcher.Constraint("Vertical", 16))
sketch1.addConstraint(Sketcher.Constraint("Horizontal", 18))
sketch1.addConstraint(Sketcher.Constraint("Vertical", 20))
sketch1.addConstraint(Sketcher.Constraint("Horizontal", 22))
sketch1.addConstraint(Sketcher.Constraint("Vertical", 24))
sketch1.addConstraint(Sketcher.Constraint("Horizontal", 26))
sketch1.addConstraint(Sketcher.Constraint("Vertical", 30))
sketch1.addConstraint(Sketcher.Constraint("Horizontal", 34))
sketch1.addConstraint(Sketcher.Constraint("Vertical", 36))
sketch1.addConstraint(Sketcher.Constraint("Horizontal", 38))
sketch1.addConstraint(Sketcher.Constraint("Vertical", 40))
sketch1.addConstraint(Sketcher.Constraint("Horizontal", 42))
sketch1.addConstraint(Sketcher.Constraint("Vertical", 44))
sketch1.addConstraint(Sketcher.Constraint("Horizontal", 46))
sketch1.addConstraint(Sketcher.Constraint("Vertical", 48))
sketch1.addConstraint(Sketcher.Constraint("Horizontal", 52))
sketch1.addConstraint(Sketcher.Constraint("Vertical", 56))
sketch1.addConstraint(Sketcher.Constraint("Horizontal", 58))
sketch1.addConstraint(Sketcher.Constraint("Vertical", 60))
sketch1.addConstraint(Sketcher.Constraint("Horizontal", 62))
sketch1.addConstraint(Sketcher.Constraint("Vertical", 64))
sketch1.addConstraint(Sketcher.Constraint("Horizontal", 66))
sketch1.addConstraint(Sketcher.Constraint("Vertical", 68))
sketch1.addConstraint(Sketcher.Constraint("Horizontal", 70))
sketch1.addConstraint(Sketcher.Constraint("Vertical", 74))
sketch1.addConstraint(Sketcher.Constraint("Horizontal", 78))
sketch1.addConstraint(Sketcher.Constraint("Vertical", 80))
sketch1.addConstraint(Sketcher.Constraint("Horizontal", 82))
sketch1.addConstraint(Sketcher.Constraint("Vertical", 84))
sketch1.addConstraint(Sketcher.Constraint("Horizontal", 86))
sketch1.addConstraint(Sketcher.Constraint("Coincident", 88, 3, -1, 1))
sketch1.addConstraint(Sketcher.Constraint("Equal", 1, 3))
sketch1.addConstraint(Sketcher.Constraint("Equal", 3, 5))
sketch1.addConstraint(Sketcher.Constraint("Equal", 5, 7))
sketch1.addConstraint(Sketcher.Constraint("Equal", 7, 9))
sketch1.addConstraint(Sketcher.Constraint("Equal", 9, 11))
sketch1.addConstraint(Sketcher.Constraint("Equal", 11, 13))
sketch1.addConstraint(Sketcher.Constraint("Equal", 13, 15))
sketch1.addConstraint(Sketcher.Constraint("Equal", 15, 17))
sketch1.addConstraint(Sketcher.Constraint("Equal", 17, 21))
sketch1.addConstraint(Sketcher.Constraint("Equal", 21, 23))
sketch1.addConstraint(Sketcher.Constraint("Equal", 23, 25))
sketch1.addConstraint(Sketcher.Constraint("Equal", 25, 27))
sketch1.addConstraint(Sketcher.Constraint("Equal", 27, 29))
sketch1.addConstraint(Sketcher.Constraint("Equal", 29, 31))
sketch1.addConstraint(Sketcher.Constraint("Equal", 31, 33))
sketch1.addConstraint(Sketcher.Constraint("Equal", 33, 35))
sketch1.addConstraint(Sketcher.Constraint("Equal", 35, 37))
sketch1.addConstraint(Sketcher.Constraint("Equal", 37, 39))
sketch1.addConstraint(Sketcher.Constraint("Equal", 19, 41))
sketch1.addConstraint(Sketcher.Constraint("Equal", 39, 43))
sketch1.addConstraint(Sketcher.Constraint("Equal", 43, 45))
sketch1.addConstraint(Sketcher.Constraint("Equal", 45, 47))
sketch1.addConstraint(Sketcher.Constraint("Equal", 47, 49))
sketch1.addConstraint(Sketcher.Constraint("Equal", 49, 51))
sketch1.addConstraint(Sketcher.Constraint("Equal", 51, 53))
sketch1.addConstraint(Sketcher.Constraint("Equal", 53, 55))
sketch1.addConstraint(Sketcher.Constraint("Equal", 55, 57))
sketch1.addConstraint(Sketcher.Constraint("Equal", 57, 59))
sketch1.addConstraint(Sketcher.Constraint("Equal", 59, 61))
sketch1.addConstraint(Sketcher.Constraint("Equal", 41, 63))
sketch1.addConstraint(Sketcher.Constraint("Equal", 61, 65))
sketch1.addConstraint(Sketcher.Constraint("Equal", 65, 67))
sketch1.addConstraint(Sketcher.Constraint("Equal", 67, 69))
sketch1.addConstraint(Sketcher.Constraint("Equal", 69, 71))
sketch1.addConstraint(Sketcher.Constraint("Equal", 71, 73))
sketch1.addConstraint(Sketcher.Constraint("Equal", 73, 75))
sketch1.addConstraint(Sketcher.Constraint("Equal", 75, 77))
sketch1.addConstraint(Sketcher.Constraint("Equal", 77, 79))
sketch1.addConstraint(Sketcher.Constraint("Equal", 79, 81))
sketch1.addConstraint(Sketcher.Constraint("Equal", 81, 83))
sketch1.addConstraint(Sketcher.Constraint("Equal", 63, 85))
sketch1.addConstraint(Sketcher.Constraint("Equal", 83, 87))
sketch1.addConstraint(Sketcher.Constraint("Symmetric", 1, 3, 45, 3, -1, 1))
sketch1.addConstraint(Sketcher.Constraint("Symmetric", 5, 3, 49, 3, -1, 1))
sketch1.addConstraint(Sketcher.Constraint("Symmetric", 7, 3, 51, 3, -1, 1))
sketch1.addConstraint(Sketcher.Constraint("Symmetric", 11, 3, 55, 3, -1, 1))
sketch1.addConstraint(Sketcher.Constraint("Symmetric", 15, 3, 59, 3, -1, 1))
sketch1.addConstraint(Sketcher.Constraint("Symmetric", 19, 3, 63, 3, -1, 1))
sketch1.addConstraint(Sketcher.Constraint("Symmetric", 23, 3, 67, 3, -1, 1))
sketch1.addConstraint(Sketcher.Constraint("Symmetric", 27, 3, 71, 3, -1, 1))
sketch1.addConstraint(Sketcher.Constraint("Symmetric", 29, 3, 73, 3, -1, 1))
sketch1.addConstraint(Sketcher.Constraint("Symmetric", 33, 3, 77, 3, -1, 1))
sketch1.addConstraint(Sketcher.Constraint("Symmetric", 37, 3, 81, 3, -1, 1))
sketch1.addConstraint(Sketcher.Constraint("Symmetric", 41, 3, 85, 3, -1, 1))
sketch1.addConstraint(Sketcher.Constraint("Symmetric", 5, 3, 11, 3, -2))
sketch1.addConstraint(Sketcher.Constraint("Symmetric", 1, 3, 15, 3, -2))
sketch1.addConstraint(Sketcher.Constraint("Symmetric", 41, 3, 63, 3, -2))
sketch1.addConstraint(Sketcher.Constraint("Symmetric", 37, 3, 67, 3, -2))
sketch1.addConstraint(Sketcher.Constraint("Symmetric", 33, 3, 71, 3, -2))
sketch1.addConstraint(Sketcher.Constraint("Perpendicular", 6, 10))
sketch1.addConstraint(Sketcher.Constraint("Parallel", 10, 28))
sketch1.addConstraint(Sketcher.Constraint("Perpendicular", 28, 32))
sketch1.addConstraint(Sketcher.Constraint("Perpendicular", 50, 54))
sketch1.addConstraint(Sketcher.Constraint("Perpendicular", 72, 76))
sketch1.addConstraint(Sketcher.Constraint("Horizontal", 31, 3, 73, 3))
sketch1.addConstraint(Sketcher.Constraint("Equal", 82, 0))
sketch1.addConstraint(Sketcher.Constraint("Equal", 78, 4))
sketch1.addConstraint(Sketcher.Constraint("Equal", 86, 20))
sketch1.addConstraint(Sketcher.Constraint("Equal", 58, 24))
sketch1.addConstraint(Sketcher.Constraint("Equal", 52, 30))
sketch1.addConstraint(Sketcher.Constraint("Equal", 10, 28))
sketch1.addConstraint(Sketcher.Constraint("Diameter", 88, Q("5 mm")))
sketch1.addConstraint(Sketcher.Constraint("Radius", 19, Q("2 mm")))
sketch1.addConstraint(Sketcher.Constraint("Radius", 1, Q("0.6 mm")))
sketch1.addConstraint(Sketcher.Constraint("DistanceX", 2, 1, 2, 2, Q("1.2 mm")))
sketch1.addConstraint(Sketcher.Constraint("DistanceX", 18, 2, 18, 1, Q("4.3 mm")))
sketch1.addConstraint(Sketcher.Constraint("DistanceX", 22, 1, 22, 2, Q("0.6 mm")))
sketch1.addConstraint(Sketcher.Constraint("DistanceX", 19, 3, -1, 1, Q("8 mm")))
sketch1.addConstraint(Sketcher.Constraint("DistanceY", 7, 3, -1, 1, Q("4.5 mm")))
sketch1.addConstraint(Sketcher.Constraint("DistanceX", 26, 1, 26, 2, Q("0.790812 mm")))
pad1 = body.newObject("PartDesign::Pad", "Pad")
pad1.Profile = sketch1
pad1.Length = 270
pad1.Reversed = True

doc.recompute()
